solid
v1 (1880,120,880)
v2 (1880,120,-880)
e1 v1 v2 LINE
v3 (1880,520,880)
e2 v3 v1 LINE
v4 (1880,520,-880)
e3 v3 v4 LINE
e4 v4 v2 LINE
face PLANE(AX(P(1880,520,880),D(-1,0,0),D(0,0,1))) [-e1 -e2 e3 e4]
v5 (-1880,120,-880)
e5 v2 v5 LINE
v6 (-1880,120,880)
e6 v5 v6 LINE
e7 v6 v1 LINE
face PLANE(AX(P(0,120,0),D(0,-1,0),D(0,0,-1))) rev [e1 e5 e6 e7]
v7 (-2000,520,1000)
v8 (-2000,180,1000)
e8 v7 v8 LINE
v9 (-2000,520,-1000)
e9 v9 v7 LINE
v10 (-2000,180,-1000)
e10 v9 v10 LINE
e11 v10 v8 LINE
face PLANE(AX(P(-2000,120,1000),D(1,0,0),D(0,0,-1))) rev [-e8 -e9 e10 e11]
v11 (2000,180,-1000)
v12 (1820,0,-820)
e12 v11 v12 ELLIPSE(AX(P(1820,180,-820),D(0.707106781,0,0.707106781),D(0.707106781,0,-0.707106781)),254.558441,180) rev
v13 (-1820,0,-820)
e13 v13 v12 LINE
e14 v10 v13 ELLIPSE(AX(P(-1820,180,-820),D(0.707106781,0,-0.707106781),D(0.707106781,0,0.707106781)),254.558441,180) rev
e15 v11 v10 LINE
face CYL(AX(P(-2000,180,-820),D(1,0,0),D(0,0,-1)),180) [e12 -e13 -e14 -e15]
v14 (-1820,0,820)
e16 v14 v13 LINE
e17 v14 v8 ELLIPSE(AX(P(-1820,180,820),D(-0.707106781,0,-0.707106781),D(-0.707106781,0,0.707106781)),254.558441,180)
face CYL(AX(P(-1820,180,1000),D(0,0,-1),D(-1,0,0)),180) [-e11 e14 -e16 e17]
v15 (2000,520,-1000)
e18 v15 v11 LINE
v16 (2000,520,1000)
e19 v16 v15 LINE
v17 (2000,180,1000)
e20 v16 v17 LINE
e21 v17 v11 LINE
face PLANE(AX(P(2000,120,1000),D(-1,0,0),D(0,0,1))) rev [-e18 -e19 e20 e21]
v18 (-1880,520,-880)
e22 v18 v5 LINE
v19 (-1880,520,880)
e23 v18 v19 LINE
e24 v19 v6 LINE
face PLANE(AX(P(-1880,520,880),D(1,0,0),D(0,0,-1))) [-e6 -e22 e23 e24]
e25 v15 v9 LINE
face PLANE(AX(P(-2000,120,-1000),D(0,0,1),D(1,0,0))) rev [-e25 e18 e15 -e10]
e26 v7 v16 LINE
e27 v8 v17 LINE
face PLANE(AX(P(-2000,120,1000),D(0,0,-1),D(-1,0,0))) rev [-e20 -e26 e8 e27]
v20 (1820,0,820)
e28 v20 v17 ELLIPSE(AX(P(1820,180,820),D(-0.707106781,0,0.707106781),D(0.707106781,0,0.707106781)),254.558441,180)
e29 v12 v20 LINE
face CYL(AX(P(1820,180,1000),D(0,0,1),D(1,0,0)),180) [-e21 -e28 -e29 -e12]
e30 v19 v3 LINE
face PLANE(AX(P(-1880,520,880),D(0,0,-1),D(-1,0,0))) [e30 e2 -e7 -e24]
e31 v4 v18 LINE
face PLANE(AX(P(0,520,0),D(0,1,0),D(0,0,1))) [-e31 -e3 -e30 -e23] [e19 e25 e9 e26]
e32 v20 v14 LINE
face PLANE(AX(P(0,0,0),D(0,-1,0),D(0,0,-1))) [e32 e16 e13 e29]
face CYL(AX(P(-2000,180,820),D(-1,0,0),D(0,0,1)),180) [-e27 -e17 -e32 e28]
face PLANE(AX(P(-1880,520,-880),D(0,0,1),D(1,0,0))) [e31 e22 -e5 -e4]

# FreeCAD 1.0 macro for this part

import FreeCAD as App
import Part
import Sketcher


def edges_at(feature, points):
    """Names of the edges that pass closest to the given points."""
    edges = feature.Shape.Edges
    near = lambda p: min(range(len(edges)), key=lambda i: edges[i].distToShape(Part.Vertex(*p))[0])
    return sorted({f"Edge{near(p) + 1}" for p in points})

doc = App.newDocument("Part")
params = doc.addObject("Spreadsheet::Sheet", "Params")
for row, (alias, value) in enumerate([
    ("sketch1_width", "4000 mm"),
    ("sketch1_height", "2000 mm"),
    ("pad1_length", "120 mm"),
    ("sketch2_width", "4000 mm"),
    ("sketch2_width2", "3760 mm"),
    ("sketch2_height", "2000 mm"),
    ("sketch2_height2", "1760 mm"),
    ("pad2_length", "400 mm"),
    ("fillet_radius", "180 mm"),
], start=1):
    params.set(f"A{row}", alias)
    params.set(f"B{row}", "=" + value)
    params.setAlias(f"B{row}", alias)

body = doc.addObject("PartDesign::Body", "Body")

# Sketch on XZ plane
sketch1 = body.newObject("Sketcher::SketchObject", "Sketch")
sketch1.AttachmentSupport = (doc.getObject("XZ_Plane"), [""])
sketch1.MapMode = "FlatFace"
sketch1.addGeometry([
    Part.LineSegment(App.Vector(-2000, -1000, 0), App.Vector(-2000, 1000, 0)),
    Part.LineSegment(App.Vector(-2000, 1000, 0), App.Vector(2000, 1000, 0)),
    Part.LineSegment(App.Vector(2000, 1000, 0), App.Vector(2000, -1000, 0)),
    Part.LineSegment(App.Vector(2000, -1000, 0), App.Vector(-2000, -1000, 0)),
], False)
sketch1.addConstraint([
    Sketcher.Constraint("Coincident", 0, 2, 1, 1),
    Sketcher.Constraint("Coincident", 1, 2, 2, 1),
    Sketcher.Constraint("Coincident", 2, 2, 3, 1),
    Sketcher.Constraint("Coincident", 3, 2, 0, 1),
    Sketcher.Constraint("Vertical", 0),
    Sketcher.Constraint("Horizontal", 1),
    Sketcher.Constraint("Vertical", 2),
    Sketcher.Constraint("Horizontal", 3),
    Sketcher.Constraint("Symmetric", 0, 2, 2, 2, -1, 1),
    Sketcher.Constraint("DistanceX", 1, 1, 1, 2, 4000.0),
    Sketcher.Constraint("DistanceY", 0, 1, 0, 2, 2000.0),
])
sketch1.setExpression("Constraints[9]", "Params.sketch1_width")
sketch1.setExpression("Constraints[10]", "Params.sketch1_height")
pad1 = body.newObject("PartDesign::Pad", "Pad")
pad1.Profile = sketch1
pad1.setExpression("Length", "Params.pad1_length")
pad1.Reversed = True

# Sketch on XZ plane
sketch2 = body.newObject("Sketcher::SketchObject", "Sketch001")
sketch2.AttachmentSupport = (doc.getObject("XZ_Plane"), [""])
sketch2.MapMode = "FlatFace"
sketch2.AttachmentOffset = App.Placement(App.Vector(0, 0, -120), App.Rotation())
sketch2.addGeometry([
    Part.LineSegment(App.Vector(-2000, -1000, 0), App.Vector(-2000, 1000, 0)),  # 0
    Part.LineSegment(App.Vector(-2000, 1000, 0), App.Vector(2000, 1000, 0)),  # 1
    Part.LineSegment(App.Vector(2000, 1000, 0), App.Vector(2000, -1000, 0)),  # 2
    Part.LineSegment(App.Vector(2000, -1000, 0), App.Vector(-2000, -1000, 0)),  # 3
    Part.LineSegment(App.Vector(1880, 880, 0), App.Vector(-1880, 880, 0)),  # 4
    Part.LineSegment(App.Vector(-1880, 880, 0), App.Vector(-1880, -880, 0)),  # 5
    Part.LineSegment(App.Vector(-1880, -880, 0), App.Vector(1880, -880, 0)),  # 6
    Part.LineSegment(App.Vector(1880, -880, 0), App.Vector(1880, 880, 0)),  # 7
], False)
sketch2.addConstraint([
    Sketcher.Constraint("Coincident", 0, 2, 1, 1),
    Sketcher.Constraint("Coincident", 1, 2, 2, 1),
    Sketcher.Constraint("Coincident", 2, 2, 3, 1),
    Sketcher.Constraint("Coincident", 3, 2, 0, 1),
    Sketcher.Constraint("Coincident", 4, 2, 5, 1),
    Sketcher.Constraint("Coincident", 5, 2, 6, 1),
    Sketcher.Constraint("Coincident", 6, 2, 7, 1),
    Sketcher.Constraint("Coincident", 7, 2, 4, 1),
    Sketcher.Constraint("Vertical", 0),
    Sketcher.Constraint("Horizontal", 1),
    Sketcher.Constraint("Vertical", 2),
    Sketcher.Constraint("Horizontal", 3),
    Sketcher.Constraint("Horizontal", 4),
    Sketcher.Constraint("Vertical", 5),
    Sketcher.Constraint("Horizontal", 6),
    Sketcher.Constraint("Vertical", 7),
    Sketcher.Constraint("Symmetric", 0, 2, 2, 2, -1, 1),
    Sketcher.Constraint("Symmetric", 4, 2, 6, 2, -1, 1),
    Sketcher.Constraint("DistanceX", 1, 1, 1, 2, 4000.0),
    Sketcher.Constraint("DistanceX", 4, 2, 4, 1, 3760.0),
    Sketcher.Constraint("DistanceY", 0, 1, 0, 2, 2000.0),
    Sketcher.Constraint("DistanceY", 5, 2, 5, 1, 1760.0),
])
sketch2.setExpression("Constraints[18]", "Params.sketch2_width")
sketch2.setExpression("Constraints[19]", "Params.sketch2_width2")
sketch2.setExpression("Constraints[20]", "Params.sketch2_height")
sketch2.setExpression("Constraints[21]", "Params.sketch2_height2")
pad2 = body.newObject("PartDesign::Pad", "Pad001")
pad2.Profile = sketch2
pad2.setExpression("Length", "Params.pad2_length")
pad2.Reversed = True
doc.recompute()

fillet = body.newObject("PartDesign::Fillet", "Fillet")
fillet.Base = (pad2, edges_at(pad2, [
    (0, 0, 1000),
    (-2000, 0, 0),
    (0, 0, -1000),
    (2000, 0, 0),
]))
fillet.setExpression("Radius", "Params.fillet_radius")

doc.recompute()
